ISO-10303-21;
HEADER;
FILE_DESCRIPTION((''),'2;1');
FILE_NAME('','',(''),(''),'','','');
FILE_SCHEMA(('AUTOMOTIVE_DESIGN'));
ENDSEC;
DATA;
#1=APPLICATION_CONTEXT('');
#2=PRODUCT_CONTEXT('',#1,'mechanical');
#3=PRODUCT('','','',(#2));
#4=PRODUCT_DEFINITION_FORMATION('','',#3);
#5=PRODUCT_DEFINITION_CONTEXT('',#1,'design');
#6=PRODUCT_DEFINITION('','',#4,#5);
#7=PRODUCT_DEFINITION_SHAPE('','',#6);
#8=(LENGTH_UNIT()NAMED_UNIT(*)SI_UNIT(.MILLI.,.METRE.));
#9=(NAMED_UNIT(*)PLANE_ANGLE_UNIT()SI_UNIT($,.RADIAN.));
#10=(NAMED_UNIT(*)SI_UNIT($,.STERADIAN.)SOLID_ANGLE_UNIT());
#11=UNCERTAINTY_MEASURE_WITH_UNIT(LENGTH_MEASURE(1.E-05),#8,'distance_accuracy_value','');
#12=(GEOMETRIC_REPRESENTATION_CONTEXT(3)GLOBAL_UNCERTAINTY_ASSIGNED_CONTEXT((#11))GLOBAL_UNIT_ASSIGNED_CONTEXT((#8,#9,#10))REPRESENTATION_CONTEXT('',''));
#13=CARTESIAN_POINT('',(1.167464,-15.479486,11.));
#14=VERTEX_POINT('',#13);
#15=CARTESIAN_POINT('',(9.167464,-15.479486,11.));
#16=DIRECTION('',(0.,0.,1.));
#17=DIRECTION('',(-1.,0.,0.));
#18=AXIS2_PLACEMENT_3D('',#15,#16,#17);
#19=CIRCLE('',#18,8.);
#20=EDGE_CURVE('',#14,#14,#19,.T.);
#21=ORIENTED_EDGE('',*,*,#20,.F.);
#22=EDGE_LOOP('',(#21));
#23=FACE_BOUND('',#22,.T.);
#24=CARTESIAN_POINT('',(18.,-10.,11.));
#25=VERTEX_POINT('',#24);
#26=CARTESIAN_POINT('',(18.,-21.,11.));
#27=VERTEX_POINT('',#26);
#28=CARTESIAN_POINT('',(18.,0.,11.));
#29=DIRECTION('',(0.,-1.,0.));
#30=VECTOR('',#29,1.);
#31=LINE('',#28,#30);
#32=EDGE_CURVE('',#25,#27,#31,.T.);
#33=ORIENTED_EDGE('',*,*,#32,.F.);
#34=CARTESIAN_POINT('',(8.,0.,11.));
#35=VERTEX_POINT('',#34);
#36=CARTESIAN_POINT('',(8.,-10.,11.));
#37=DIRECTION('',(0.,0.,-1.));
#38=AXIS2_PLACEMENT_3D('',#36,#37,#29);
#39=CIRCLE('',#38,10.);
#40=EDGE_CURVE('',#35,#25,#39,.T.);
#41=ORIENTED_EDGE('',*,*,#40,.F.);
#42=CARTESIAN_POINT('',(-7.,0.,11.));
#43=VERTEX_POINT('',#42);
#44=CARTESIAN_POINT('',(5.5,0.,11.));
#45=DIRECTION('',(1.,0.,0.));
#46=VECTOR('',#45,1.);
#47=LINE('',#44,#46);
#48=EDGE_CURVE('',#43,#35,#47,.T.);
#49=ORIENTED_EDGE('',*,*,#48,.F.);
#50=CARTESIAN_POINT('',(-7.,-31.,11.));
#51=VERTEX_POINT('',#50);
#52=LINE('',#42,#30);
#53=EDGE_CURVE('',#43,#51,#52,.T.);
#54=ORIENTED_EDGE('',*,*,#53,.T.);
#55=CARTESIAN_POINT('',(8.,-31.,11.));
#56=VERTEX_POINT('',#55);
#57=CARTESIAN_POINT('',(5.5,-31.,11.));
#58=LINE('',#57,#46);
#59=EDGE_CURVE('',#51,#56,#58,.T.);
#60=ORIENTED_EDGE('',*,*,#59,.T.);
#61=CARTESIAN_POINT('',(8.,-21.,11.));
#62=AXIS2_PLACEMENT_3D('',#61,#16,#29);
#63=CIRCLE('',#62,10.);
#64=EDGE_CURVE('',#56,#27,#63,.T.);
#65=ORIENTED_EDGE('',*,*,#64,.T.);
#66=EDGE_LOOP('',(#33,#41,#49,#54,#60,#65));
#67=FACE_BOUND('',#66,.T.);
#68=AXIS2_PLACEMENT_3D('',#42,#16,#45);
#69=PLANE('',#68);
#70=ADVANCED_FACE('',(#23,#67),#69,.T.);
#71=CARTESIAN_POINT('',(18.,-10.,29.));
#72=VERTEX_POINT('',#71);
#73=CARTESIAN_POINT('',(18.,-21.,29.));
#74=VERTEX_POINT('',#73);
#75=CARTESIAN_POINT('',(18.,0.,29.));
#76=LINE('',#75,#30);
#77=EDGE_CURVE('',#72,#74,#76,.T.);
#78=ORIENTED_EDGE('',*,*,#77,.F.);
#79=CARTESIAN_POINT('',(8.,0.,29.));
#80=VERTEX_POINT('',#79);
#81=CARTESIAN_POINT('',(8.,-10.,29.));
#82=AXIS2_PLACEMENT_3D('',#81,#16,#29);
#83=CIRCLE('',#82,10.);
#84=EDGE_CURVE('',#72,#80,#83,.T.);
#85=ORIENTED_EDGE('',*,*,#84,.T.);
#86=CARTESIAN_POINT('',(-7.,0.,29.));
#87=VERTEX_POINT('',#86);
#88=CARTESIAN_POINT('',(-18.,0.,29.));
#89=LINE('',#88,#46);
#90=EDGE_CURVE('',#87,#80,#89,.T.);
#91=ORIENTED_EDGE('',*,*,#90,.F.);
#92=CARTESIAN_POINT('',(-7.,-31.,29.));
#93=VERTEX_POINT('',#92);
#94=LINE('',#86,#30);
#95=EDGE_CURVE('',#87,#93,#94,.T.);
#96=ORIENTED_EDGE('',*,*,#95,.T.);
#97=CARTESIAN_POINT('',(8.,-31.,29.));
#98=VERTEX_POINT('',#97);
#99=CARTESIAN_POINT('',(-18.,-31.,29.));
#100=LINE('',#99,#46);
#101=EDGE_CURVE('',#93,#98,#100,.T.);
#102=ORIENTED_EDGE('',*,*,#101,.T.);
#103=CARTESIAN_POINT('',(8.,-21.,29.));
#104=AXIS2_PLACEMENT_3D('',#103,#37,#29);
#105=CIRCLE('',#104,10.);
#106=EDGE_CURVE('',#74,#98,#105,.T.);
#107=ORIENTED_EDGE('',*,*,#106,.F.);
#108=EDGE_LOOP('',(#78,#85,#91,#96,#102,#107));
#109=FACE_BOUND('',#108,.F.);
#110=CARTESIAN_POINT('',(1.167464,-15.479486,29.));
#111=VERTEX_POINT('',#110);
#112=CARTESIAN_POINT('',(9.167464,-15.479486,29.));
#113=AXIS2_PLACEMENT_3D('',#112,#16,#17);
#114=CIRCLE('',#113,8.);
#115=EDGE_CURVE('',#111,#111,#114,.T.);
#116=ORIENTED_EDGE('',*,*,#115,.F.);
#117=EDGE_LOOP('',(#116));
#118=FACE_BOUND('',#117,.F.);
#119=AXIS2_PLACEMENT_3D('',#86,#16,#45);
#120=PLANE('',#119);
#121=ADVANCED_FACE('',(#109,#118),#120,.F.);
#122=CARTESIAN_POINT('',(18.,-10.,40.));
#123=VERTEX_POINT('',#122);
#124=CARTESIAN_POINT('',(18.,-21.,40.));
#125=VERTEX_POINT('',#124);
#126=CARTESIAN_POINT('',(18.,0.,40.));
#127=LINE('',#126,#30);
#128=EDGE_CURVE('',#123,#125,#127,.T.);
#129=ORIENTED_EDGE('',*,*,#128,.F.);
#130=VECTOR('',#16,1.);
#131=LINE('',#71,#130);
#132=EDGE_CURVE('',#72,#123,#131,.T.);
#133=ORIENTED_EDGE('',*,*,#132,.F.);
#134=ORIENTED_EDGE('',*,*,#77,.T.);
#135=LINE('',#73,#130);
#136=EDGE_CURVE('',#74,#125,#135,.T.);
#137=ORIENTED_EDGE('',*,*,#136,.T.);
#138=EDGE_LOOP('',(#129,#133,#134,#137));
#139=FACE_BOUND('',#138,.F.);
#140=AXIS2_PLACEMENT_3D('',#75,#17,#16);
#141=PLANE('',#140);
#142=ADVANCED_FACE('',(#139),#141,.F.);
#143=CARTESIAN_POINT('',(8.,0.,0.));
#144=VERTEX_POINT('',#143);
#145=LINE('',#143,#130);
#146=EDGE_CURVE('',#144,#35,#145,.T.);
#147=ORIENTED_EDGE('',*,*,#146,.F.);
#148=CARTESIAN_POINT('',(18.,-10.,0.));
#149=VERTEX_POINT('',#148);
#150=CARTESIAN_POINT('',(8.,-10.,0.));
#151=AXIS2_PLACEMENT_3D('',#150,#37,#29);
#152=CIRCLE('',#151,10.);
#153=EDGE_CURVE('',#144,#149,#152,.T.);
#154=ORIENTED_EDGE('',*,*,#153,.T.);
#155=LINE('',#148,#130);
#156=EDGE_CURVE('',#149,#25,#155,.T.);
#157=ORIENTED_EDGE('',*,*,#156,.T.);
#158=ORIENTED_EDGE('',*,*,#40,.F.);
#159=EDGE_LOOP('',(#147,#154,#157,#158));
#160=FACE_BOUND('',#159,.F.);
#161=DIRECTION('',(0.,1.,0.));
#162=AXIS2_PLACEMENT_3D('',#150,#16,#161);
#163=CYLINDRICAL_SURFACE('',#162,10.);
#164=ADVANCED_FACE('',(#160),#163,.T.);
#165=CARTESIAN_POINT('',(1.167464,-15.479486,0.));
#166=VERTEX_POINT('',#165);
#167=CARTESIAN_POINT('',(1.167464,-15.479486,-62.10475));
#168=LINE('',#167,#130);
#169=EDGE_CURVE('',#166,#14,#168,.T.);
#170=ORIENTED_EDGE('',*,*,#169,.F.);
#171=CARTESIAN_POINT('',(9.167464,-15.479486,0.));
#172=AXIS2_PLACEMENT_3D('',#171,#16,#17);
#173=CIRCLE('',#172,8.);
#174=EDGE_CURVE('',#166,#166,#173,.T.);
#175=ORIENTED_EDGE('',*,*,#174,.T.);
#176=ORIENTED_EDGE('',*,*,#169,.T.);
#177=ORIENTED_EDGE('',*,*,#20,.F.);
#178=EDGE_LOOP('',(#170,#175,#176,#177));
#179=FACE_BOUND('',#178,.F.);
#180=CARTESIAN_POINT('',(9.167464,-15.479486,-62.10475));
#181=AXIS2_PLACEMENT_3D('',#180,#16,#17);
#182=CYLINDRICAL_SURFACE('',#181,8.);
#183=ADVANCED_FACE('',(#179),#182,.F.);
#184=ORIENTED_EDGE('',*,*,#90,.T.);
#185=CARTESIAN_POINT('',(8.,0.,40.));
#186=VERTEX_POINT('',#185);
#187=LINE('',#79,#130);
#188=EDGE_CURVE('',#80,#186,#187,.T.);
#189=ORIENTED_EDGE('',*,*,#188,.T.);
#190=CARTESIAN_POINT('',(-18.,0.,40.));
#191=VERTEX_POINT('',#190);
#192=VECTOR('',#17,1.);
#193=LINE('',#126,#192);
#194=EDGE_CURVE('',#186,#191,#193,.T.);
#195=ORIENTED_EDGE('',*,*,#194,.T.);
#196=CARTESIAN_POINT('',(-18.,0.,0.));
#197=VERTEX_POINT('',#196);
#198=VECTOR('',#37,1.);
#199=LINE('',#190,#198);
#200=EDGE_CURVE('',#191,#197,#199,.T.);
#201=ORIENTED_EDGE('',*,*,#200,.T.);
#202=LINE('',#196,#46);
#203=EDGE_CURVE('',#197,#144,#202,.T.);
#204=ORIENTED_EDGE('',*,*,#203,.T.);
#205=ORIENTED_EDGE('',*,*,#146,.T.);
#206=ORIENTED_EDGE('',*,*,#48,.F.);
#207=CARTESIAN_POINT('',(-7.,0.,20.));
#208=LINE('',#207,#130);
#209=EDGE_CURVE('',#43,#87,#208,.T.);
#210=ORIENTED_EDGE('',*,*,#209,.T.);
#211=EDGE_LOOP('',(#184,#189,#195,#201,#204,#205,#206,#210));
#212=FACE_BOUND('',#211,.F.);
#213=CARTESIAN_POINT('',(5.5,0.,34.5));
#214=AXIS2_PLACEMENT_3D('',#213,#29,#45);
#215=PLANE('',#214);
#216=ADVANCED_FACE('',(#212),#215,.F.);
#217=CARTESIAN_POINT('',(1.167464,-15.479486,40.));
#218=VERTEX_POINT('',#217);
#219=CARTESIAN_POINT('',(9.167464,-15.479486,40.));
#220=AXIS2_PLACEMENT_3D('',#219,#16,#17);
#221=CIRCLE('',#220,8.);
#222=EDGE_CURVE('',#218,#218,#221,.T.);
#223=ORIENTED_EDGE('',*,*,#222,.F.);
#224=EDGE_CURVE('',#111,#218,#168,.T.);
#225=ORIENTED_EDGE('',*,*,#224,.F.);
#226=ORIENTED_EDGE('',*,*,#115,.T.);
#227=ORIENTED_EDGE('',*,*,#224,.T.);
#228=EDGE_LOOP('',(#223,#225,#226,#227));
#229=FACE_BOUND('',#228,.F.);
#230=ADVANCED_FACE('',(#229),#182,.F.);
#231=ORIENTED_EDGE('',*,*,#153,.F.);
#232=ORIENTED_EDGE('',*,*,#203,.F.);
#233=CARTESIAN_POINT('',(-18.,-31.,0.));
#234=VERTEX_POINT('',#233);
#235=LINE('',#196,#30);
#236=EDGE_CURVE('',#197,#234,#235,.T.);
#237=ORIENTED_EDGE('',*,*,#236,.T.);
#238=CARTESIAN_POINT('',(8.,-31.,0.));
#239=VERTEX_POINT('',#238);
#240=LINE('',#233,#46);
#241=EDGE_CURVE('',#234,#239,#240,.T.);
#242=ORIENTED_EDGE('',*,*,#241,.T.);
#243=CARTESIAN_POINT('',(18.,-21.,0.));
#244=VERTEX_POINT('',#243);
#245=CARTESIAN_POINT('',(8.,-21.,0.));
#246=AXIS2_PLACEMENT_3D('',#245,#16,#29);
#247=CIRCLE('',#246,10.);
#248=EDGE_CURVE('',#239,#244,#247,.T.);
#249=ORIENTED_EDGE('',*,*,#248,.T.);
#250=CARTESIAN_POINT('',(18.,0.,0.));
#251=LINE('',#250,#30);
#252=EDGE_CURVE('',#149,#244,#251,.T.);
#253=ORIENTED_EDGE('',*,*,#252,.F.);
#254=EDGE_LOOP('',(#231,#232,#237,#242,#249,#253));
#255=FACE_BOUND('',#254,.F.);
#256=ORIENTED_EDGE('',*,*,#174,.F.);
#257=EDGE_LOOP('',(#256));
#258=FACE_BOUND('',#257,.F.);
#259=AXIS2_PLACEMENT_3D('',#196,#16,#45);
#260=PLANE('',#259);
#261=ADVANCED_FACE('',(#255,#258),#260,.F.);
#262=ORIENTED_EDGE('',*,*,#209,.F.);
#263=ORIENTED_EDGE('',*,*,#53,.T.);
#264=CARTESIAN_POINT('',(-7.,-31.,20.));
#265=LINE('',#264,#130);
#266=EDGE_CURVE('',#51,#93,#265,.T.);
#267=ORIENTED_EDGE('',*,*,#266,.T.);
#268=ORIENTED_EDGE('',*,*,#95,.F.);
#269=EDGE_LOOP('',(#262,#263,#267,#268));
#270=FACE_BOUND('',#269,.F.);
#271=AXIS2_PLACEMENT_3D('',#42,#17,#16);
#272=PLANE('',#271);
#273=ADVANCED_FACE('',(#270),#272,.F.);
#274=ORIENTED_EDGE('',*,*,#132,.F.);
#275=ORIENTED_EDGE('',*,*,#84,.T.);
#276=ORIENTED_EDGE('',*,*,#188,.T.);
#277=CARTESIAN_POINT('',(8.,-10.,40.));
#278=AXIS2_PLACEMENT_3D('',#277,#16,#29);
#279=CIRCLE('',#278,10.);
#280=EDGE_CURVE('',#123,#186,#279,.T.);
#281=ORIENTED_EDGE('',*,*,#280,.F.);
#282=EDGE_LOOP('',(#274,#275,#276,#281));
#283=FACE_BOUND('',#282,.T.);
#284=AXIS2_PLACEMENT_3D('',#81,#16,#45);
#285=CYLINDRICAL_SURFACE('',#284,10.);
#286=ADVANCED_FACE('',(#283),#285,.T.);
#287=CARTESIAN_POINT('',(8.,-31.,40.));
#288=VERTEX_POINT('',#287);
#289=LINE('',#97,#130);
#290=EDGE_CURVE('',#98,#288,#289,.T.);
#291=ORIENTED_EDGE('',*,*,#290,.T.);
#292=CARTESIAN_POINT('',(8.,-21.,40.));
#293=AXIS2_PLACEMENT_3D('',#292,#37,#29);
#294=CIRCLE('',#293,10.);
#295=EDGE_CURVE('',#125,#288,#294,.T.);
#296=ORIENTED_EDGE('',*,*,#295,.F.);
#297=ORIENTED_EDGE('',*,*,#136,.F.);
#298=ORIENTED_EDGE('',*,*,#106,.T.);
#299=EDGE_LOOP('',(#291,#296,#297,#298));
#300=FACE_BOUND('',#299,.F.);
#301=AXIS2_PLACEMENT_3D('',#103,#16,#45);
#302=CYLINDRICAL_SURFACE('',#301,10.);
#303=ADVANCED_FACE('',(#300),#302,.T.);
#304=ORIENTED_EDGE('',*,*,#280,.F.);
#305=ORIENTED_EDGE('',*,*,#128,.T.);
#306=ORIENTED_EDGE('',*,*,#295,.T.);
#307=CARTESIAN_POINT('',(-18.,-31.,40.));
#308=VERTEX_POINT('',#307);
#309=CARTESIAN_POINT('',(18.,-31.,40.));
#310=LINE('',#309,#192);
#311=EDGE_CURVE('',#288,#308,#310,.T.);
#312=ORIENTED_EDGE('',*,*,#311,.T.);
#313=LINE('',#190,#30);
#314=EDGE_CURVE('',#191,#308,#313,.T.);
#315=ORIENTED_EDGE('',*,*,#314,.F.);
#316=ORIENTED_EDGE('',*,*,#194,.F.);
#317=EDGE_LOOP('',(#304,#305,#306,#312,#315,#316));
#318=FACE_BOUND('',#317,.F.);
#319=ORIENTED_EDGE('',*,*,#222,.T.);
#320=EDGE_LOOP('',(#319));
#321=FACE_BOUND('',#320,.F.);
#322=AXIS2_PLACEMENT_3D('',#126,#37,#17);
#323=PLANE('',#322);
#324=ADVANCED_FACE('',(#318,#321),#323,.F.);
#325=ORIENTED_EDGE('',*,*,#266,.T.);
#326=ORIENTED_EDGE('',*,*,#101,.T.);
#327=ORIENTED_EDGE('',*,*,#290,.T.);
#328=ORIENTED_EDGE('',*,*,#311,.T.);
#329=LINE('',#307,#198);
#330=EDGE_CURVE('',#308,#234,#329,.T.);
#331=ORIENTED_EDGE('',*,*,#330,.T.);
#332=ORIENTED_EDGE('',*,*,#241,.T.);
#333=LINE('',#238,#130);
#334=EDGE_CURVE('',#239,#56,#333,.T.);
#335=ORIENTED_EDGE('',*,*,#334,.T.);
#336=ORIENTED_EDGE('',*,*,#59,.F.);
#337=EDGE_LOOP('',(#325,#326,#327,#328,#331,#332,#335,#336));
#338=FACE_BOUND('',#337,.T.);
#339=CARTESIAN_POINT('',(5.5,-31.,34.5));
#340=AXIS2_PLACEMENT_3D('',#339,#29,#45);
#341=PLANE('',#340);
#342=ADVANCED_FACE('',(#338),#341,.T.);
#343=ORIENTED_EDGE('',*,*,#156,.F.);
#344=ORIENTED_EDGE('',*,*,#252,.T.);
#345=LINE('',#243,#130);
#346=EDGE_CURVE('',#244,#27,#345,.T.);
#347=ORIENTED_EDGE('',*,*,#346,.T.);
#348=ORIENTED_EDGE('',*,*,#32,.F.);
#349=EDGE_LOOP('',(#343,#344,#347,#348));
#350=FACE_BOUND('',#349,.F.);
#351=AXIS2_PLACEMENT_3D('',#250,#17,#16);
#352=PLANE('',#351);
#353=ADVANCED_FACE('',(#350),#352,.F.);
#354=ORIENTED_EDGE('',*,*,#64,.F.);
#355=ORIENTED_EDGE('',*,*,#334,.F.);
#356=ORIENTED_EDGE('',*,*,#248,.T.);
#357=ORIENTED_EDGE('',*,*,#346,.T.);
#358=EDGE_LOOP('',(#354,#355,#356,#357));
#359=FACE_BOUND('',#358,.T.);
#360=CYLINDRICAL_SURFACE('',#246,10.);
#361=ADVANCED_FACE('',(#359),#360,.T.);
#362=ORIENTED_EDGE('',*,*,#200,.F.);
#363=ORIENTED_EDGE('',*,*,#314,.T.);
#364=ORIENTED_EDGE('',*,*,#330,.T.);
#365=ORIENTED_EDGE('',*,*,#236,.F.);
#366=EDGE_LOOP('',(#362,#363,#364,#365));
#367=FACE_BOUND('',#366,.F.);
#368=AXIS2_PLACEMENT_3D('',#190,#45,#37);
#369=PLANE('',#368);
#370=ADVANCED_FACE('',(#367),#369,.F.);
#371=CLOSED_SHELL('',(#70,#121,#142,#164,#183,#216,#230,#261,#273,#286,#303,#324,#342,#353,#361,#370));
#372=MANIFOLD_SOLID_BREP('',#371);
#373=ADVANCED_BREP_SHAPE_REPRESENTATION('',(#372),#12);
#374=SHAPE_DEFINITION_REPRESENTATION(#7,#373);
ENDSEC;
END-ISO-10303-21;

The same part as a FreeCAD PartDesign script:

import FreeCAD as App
import Part
import Sketcher
from FreeCAD import Vector
Q = App.Units.Quantity


def edges_at(feature, points):
    """Names of the edges that pass closest to the given points."""
    edges = feature.Shape.Edges
    near = lambda p: min(range(len(edges)), key=lambda i: edges[i].distToShape(Part.Vertex(*p))[0])
    return sorted({f"Edge{near(p) + 1}" for p in points})

doc = App.newDocument("Part")
body = doc.addObject("PartDesign::Body", "Body")

# Sketch on XZ plane
sketch1 = body.newObject("Sketcher::SketchObject", "Sketch")
sketch1.AttachmentSupport = (doc.getObject("XZ_Plane"), [""])
sketch1.MapMode = "FlatFace"
sketch1.addGeometry([
    Part.LineSegment(Vector(18, 29, 0), Vector(18, 40, 0)),  # 0
    Part.LineSegment(Vector(18, 40, 0), Vector(-18, 40, 0)),  # 1
    Part.LineSegment(Vector(-18, 40, 0), Vector(-18, 0, 0)),  # 2
    Part.LineSegment(Vector(-18, 0, 0), Vector(18, 0, 0)),  # 3
    Part.LineSegment(Vector(18, 0, 0), Vector(18, 11, 0)),  # 4
    Part.LineSegment(Vector(18, 11, 0), Vector(-7, 11, 0)),  # 5
    Part.LineSegment(Vector(-7, 11, 0), Vector(-7, 29, 0)),  # 6
    Part.LineSegment(Vector(-7, 29, 0), Vector(18, 29, 0)),  # 7
], False)
sketch1.addConstraint([
    Sketcher.Constraint("Coincident", 0, 2, 1, 1),
    Sketcher.Constraint("Coincident", 1, 2, 2, 1),
    Sketcher.Constraint("Coincident", 2, 2, 3, 1),
    Sketcher.Constraint("Coincident", 3, 2, 4, 1),
    Sketcher.Constraint("Coincident", 4, 2, 5, 1),
    Sketcher.Constraint("Coincident", 5, 2, 6, 1),
    Sketcher.Constraint("Coincident", 6, 2, 7, 1),
    Sketcher.Constraint("Coincident", 7, 2, 0, 1),
    Sketcher.Constraint("Vertical", 0),
    Sketcher.Constraint("Horizontal", 1),
    Sketcher.Constraint("Vertical", 2),
    Sketcher.Constraint("Horizontal", 3),
    Sketcher.Constraint("Vertical", 4),
    Sketcher.Constraint("Horizontal", 5),
    Sketcher.Constraint("Vertical", 6),
    Sketcher.Constraint("Horizontal", 7),
    Sketcher.Constraint("Symmetric", 2, 2, 3, 2, -1, 1),
    Sketcher.Constraint("Vertical", 0, 2, 3, 2),
    Sketcher.Constraint("Equal", 0, 4),
    Sketcher.Constraint("DistanceX", 1, 2, 1, 1, Q("36 mm")),
    Sketcher.Constraint("DistanceX", 5, 2, 5, 1, Q("25 mm")),
    Sketcher.Constraint("DistanceY", 0, 1, 0, 2, Q("11 mm")),
    Sketcher.Constraint("DistanceY", 2, 2, 2, 1, Q("40 mm")),
])
pad1 = body.newObject("PartDesign::Pad", "Pad")
pad1.Profile = sketch1
pad1.Length = 31

# Sketch on XY plane
sketch2 = body.newObject("Sketcher::SketchObject", "Sketch001")
sketch2.AttachmentSupport = (doc.getObject("XY_Plane"), [""])
sketch2.MapMode = "FlatFace"
sketch2.addGeometry(Part.Circle(Vector(9, -15, 0), Vector(0, 0, 1), 8), False)
sketch2.addConstraint([
    Sketcher.Constraint("Diameter", 0, Q("16 mm")),
    Sketcher.Constraint("DistanceX", -1, 1, 0, 3, Q("9.167464 mm")),
    Sketcher.Constraint("DistanceY", 0, 3, -1, 1, Q("15.479486 mm")),
])
doc.recompute()
hole = body.newObject("PartDesign::Hole", "Hole")
hole.Profile = sketch2
hole.ThreadType = "None"
hole.Diameter = 16
hole.DepthType = "ThroughAll"
hole.Reversed = True
doc.recompute()

fillet = body.newObject("PartDesign::Fillet", "Fillet")
fillet.Base = (hole, edges_at(hole, [
    (18, 0, 5.5),
    (18, 0, 34.5),
    (18, -31, 5.5),
    (18, -31, 34.5),
]))
fillet.Radius = 10

doc.recompute()
